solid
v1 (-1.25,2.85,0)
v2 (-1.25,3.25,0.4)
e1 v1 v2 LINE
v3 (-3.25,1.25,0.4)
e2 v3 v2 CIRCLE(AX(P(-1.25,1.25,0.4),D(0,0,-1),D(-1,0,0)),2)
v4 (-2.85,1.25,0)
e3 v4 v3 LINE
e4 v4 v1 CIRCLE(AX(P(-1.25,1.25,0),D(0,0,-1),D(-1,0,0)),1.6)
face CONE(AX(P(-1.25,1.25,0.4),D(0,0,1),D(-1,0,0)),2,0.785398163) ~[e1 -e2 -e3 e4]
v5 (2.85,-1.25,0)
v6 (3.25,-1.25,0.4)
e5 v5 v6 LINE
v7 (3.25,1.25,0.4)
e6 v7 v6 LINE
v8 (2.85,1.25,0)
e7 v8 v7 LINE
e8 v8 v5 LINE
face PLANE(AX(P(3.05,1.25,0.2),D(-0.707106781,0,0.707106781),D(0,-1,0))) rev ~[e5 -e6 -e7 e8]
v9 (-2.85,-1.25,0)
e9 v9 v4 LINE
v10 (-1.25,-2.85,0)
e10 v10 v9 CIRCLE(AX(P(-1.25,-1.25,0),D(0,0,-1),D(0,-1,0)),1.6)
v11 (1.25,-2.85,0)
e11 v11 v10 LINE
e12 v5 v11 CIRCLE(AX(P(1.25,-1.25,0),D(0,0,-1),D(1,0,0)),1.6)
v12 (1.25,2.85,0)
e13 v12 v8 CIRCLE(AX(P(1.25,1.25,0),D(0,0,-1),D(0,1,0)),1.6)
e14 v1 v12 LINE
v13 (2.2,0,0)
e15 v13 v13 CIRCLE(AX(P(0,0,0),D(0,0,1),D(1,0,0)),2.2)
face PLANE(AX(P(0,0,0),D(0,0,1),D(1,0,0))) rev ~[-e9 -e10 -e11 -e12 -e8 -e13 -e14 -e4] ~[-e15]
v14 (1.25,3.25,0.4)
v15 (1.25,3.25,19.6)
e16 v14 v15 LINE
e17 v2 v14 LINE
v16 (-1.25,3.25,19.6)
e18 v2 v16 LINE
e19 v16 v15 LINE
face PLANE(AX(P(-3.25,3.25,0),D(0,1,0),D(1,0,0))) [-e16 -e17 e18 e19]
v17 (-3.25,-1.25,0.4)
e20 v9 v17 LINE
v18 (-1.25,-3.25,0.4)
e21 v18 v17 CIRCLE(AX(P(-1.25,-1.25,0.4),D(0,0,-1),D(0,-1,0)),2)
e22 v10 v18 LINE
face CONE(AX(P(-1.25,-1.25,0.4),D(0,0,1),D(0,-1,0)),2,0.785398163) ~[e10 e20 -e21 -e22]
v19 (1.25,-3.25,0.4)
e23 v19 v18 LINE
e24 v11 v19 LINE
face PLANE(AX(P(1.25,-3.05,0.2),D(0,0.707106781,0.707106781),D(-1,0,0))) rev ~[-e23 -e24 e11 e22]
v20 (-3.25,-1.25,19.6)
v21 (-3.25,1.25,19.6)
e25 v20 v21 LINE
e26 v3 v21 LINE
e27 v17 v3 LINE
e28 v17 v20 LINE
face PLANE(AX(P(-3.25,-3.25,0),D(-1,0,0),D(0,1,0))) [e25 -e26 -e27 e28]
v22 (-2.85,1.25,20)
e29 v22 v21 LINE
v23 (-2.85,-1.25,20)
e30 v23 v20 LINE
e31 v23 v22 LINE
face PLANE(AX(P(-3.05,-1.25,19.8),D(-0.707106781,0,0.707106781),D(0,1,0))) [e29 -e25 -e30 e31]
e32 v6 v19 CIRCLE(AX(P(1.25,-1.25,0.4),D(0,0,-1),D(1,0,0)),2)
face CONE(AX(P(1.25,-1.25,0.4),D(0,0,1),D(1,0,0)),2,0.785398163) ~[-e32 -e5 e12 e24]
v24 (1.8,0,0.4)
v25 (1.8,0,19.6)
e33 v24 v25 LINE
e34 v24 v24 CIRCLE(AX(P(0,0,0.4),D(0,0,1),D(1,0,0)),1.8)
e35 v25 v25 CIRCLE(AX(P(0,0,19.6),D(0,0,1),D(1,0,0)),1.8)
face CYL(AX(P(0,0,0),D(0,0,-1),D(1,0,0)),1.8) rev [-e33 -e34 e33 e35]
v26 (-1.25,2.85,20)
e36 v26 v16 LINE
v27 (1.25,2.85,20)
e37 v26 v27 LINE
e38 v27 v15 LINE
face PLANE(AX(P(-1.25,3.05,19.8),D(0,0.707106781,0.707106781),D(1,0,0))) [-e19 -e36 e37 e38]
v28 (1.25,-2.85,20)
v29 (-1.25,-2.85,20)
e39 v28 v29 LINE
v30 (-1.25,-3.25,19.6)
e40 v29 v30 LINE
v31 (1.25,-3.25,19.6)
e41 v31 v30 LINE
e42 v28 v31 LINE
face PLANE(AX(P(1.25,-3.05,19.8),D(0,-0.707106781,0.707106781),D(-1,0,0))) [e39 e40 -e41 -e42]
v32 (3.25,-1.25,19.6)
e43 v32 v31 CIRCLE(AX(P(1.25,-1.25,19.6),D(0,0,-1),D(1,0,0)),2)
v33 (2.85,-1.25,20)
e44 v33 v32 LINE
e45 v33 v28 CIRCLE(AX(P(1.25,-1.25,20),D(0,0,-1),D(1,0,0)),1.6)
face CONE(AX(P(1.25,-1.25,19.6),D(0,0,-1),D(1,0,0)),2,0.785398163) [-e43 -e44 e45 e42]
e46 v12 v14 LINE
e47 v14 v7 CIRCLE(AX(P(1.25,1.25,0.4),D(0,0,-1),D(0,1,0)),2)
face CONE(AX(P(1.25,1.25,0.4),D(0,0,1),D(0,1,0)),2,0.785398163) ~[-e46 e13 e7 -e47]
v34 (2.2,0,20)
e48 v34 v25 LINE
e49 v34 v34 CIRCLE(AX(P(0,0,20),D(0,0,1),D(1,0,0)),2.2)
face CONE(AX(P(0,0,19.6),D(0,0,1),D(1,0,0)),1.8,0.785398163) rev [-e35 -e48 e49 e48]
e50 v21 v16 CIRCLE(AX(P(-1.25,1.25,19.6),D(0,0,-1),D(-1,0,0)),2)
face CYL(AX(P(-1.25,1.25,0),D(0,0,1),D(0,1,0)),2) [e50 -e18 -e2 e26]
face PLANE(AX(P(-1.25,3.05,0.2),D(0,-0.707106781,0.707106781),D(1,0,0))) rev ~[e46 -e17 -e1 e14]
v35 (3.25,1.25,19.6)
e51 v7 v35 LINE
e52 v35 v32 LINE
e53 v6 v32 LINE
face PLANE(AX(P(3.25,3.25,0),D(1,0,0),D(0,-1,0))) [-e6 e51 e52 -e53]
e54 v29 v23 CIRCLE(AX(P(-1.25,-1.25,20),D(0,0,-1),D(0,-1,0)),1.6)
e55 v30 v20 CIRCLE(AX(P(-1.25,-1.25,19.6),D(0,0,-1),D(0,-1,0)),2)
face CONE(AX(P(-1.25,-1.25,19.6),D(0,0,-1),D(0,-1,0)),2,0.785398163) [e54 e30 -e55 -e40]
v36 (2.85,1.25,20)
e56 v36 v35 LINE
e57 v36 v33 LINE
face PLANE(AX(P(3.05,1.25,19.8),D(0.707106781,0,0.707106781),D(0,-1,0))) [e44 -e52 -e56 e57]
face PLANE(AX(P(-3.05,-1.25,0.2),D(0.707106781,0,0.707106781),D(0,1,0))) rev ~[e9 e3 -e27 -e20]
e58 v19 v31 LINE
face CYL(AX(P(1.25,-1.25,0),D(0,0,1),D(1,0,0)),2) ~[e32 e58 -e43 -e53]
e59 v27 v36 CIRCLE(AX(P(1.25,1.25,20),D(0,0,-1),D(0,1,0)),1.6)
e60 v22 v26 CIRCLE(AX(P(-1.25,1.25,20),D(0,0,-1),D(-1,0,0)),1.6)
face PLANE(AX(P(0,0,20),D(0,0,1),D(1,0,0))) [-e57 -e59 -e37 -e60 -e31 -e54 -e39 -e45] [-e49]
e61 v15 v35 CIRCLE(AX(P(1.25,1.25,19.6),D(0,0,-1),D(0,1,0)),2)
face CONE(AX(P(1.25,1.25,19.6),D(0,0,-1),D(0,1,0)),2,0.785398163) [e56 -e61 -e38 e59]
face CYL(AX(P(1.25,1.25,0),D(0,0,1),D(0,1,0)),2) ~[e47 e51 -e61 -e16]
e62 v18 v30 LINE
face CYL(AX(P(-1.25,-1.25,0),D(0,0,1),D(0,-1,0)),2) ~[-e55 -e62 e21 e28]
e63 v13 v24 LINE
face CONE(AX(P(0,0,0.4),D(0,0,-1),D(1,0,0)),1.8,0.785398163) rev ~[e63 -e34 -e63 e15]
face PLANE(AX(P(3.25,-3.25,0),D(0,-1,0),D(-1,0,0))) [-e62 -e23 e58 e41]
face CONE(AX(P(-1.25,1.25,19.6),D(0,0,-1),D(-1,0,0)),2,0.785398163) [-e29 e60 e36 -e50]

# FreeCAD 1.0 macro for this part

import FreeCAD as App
import Part
import Sketcher
from FreeCAD import Vector


def edges_at(feature, points):
    """Names of the edges that pass closest to the given points."""
    edges = feature.Shape.Edges
    near = lambda p: min(range(len(edges)), key=lambda i: edges[i].distToShape(Part.Vertex(*p))[0])
    return sorted({f"Edge{near(p) + 1}" for p in points})


def add_polygon(sketch, points):
    """Adds a closed chain of lines whose ends are joined by coincident constraints."""
    first, n = sketch.GeometryCount, len(points)
    for a, b in zip(points, points[1:] + points[:1]):
        sketch.addGeometry(Part.LineSegment(App.Vector(*a, 0), App.Vector(*b, 0)), False)
    for i in range(n):
        sketch.addConstraint(Sketcher.Constraint("Coincident", first + i, 2, first + (i + 1) % n, 1))

doc = App.newDocument("Part")
params = doc.addObject("Spreadsheet::Sheet", "Params")
for row, (alias, value) in enumerate([
    ("sketch1_diameter", "3.6 mm"),
    ("sketch1_width", "6.5 mm"),
    ("pad1_length", "20 mm"),
    ("fillet_radius", "2 mm"),
    ("chamfer_size", "0.4 mm"),
], start=1):
    params.set(f"A{row}", alias)
    params.set(f"B{row}", "=" + value)
    params.setAlias(f"B{row}", alias)

body = doc.addObject("PartDesign::Body", "Body")

sketch1 = doc.addObject("Sketcher::SketchObject", "Sketch")
body.addObject(sketch1)
sketch1.AttachmentSupport = (doc.XY_Plane, [""])
sketch1.MapMode = "FlatFace"
add_polygon(sketch1, [(3.25, 3.25), (-3.25, 3.25), (-3.25, -3.25), (3.25, -3.25)])
sketch1.addGeometry(Part.Circle(Vector(0, 0, 0), Vector(0, 0, 1), 1.8), False)
sketch1.addConstraint([
    Sketcher.Constraint("Horizontal", 0),
    Sketcher.Constraint("Vertical", 1),
    Sketcher.Constraint("Horizontal", 2),
    Sketcher.Constraint("Vertical", 3),
    Sketcher.Constraint("Coincident", 4, 3, -1, 1),
    Sketcher.Constraint("Symmetric", 0, 2, 2, 2, -1, 1),
    Sketcher.Constraint("Equal", 2, 1),
    Sketcher.Constraint("Diameter", 4, 3.6),
    Sketcher.Constraint("DistanceX", 0, 2, 0, 1, 6.5),
])
sketch1.setExpression("Constraints[11]", "Params.sketch1_diameter")
sketch1.setExpression("Constraints[12]", "Params.sketch1_width")
pad1 = doc.addObject("PartDesign::Pad", "Pad")
body.addObject(pad1)
pad1.Profile = sketch1
pad1.setExpression("Length", "Params.pad1_length")
doc.recompute()

fillet = doc.addObject("PartDesign::Fillet", "Fillet")
body.addObject(fillet)
fillet.Base = (pad1, edges_at(pad1, [
    (3.25, 3.25, 10),
    (3.25, -3.25, 10),
    (-3.25, -3.25, 10),
    (-3.25, 3.25, 10),
]))
fillet.setExpression("Radius", "Params.fillet_radius")
doc.recompute()

chamfer = doc.addObject("PartDesign::Chamfer", "Chamfer")
body.addObject(chamfer)
chamfer.Base = (fillet, edges_at(fillet, [
    (-2.664, -2.664, 20),
    (-3.25, 0, 20),
    (-2.664, 2.664, 20),
    (0, 3.25, 20),
    (2.664, 2.664, 20),
    (3.25, 0, 20),
    (2.664, -2.664, 20),
    (0, -3.25, 20),
    (2.664, -2.664, 0),
    (3.25, 0, 0),
    (2.664, 2.664, 0),
    (0, 3.25, 0),
    (-2.664, 2.664, 0),
    (-3.25, 0, 0),
    (-2.664, -2.664, 0),
    (0, -3.25, 0),
    (-1.8, 0, 20),
    (-1.8, 0, 0),
]))
chamfer.setExpression("Size", "Params.chamfer_size")

doc.recompute()
